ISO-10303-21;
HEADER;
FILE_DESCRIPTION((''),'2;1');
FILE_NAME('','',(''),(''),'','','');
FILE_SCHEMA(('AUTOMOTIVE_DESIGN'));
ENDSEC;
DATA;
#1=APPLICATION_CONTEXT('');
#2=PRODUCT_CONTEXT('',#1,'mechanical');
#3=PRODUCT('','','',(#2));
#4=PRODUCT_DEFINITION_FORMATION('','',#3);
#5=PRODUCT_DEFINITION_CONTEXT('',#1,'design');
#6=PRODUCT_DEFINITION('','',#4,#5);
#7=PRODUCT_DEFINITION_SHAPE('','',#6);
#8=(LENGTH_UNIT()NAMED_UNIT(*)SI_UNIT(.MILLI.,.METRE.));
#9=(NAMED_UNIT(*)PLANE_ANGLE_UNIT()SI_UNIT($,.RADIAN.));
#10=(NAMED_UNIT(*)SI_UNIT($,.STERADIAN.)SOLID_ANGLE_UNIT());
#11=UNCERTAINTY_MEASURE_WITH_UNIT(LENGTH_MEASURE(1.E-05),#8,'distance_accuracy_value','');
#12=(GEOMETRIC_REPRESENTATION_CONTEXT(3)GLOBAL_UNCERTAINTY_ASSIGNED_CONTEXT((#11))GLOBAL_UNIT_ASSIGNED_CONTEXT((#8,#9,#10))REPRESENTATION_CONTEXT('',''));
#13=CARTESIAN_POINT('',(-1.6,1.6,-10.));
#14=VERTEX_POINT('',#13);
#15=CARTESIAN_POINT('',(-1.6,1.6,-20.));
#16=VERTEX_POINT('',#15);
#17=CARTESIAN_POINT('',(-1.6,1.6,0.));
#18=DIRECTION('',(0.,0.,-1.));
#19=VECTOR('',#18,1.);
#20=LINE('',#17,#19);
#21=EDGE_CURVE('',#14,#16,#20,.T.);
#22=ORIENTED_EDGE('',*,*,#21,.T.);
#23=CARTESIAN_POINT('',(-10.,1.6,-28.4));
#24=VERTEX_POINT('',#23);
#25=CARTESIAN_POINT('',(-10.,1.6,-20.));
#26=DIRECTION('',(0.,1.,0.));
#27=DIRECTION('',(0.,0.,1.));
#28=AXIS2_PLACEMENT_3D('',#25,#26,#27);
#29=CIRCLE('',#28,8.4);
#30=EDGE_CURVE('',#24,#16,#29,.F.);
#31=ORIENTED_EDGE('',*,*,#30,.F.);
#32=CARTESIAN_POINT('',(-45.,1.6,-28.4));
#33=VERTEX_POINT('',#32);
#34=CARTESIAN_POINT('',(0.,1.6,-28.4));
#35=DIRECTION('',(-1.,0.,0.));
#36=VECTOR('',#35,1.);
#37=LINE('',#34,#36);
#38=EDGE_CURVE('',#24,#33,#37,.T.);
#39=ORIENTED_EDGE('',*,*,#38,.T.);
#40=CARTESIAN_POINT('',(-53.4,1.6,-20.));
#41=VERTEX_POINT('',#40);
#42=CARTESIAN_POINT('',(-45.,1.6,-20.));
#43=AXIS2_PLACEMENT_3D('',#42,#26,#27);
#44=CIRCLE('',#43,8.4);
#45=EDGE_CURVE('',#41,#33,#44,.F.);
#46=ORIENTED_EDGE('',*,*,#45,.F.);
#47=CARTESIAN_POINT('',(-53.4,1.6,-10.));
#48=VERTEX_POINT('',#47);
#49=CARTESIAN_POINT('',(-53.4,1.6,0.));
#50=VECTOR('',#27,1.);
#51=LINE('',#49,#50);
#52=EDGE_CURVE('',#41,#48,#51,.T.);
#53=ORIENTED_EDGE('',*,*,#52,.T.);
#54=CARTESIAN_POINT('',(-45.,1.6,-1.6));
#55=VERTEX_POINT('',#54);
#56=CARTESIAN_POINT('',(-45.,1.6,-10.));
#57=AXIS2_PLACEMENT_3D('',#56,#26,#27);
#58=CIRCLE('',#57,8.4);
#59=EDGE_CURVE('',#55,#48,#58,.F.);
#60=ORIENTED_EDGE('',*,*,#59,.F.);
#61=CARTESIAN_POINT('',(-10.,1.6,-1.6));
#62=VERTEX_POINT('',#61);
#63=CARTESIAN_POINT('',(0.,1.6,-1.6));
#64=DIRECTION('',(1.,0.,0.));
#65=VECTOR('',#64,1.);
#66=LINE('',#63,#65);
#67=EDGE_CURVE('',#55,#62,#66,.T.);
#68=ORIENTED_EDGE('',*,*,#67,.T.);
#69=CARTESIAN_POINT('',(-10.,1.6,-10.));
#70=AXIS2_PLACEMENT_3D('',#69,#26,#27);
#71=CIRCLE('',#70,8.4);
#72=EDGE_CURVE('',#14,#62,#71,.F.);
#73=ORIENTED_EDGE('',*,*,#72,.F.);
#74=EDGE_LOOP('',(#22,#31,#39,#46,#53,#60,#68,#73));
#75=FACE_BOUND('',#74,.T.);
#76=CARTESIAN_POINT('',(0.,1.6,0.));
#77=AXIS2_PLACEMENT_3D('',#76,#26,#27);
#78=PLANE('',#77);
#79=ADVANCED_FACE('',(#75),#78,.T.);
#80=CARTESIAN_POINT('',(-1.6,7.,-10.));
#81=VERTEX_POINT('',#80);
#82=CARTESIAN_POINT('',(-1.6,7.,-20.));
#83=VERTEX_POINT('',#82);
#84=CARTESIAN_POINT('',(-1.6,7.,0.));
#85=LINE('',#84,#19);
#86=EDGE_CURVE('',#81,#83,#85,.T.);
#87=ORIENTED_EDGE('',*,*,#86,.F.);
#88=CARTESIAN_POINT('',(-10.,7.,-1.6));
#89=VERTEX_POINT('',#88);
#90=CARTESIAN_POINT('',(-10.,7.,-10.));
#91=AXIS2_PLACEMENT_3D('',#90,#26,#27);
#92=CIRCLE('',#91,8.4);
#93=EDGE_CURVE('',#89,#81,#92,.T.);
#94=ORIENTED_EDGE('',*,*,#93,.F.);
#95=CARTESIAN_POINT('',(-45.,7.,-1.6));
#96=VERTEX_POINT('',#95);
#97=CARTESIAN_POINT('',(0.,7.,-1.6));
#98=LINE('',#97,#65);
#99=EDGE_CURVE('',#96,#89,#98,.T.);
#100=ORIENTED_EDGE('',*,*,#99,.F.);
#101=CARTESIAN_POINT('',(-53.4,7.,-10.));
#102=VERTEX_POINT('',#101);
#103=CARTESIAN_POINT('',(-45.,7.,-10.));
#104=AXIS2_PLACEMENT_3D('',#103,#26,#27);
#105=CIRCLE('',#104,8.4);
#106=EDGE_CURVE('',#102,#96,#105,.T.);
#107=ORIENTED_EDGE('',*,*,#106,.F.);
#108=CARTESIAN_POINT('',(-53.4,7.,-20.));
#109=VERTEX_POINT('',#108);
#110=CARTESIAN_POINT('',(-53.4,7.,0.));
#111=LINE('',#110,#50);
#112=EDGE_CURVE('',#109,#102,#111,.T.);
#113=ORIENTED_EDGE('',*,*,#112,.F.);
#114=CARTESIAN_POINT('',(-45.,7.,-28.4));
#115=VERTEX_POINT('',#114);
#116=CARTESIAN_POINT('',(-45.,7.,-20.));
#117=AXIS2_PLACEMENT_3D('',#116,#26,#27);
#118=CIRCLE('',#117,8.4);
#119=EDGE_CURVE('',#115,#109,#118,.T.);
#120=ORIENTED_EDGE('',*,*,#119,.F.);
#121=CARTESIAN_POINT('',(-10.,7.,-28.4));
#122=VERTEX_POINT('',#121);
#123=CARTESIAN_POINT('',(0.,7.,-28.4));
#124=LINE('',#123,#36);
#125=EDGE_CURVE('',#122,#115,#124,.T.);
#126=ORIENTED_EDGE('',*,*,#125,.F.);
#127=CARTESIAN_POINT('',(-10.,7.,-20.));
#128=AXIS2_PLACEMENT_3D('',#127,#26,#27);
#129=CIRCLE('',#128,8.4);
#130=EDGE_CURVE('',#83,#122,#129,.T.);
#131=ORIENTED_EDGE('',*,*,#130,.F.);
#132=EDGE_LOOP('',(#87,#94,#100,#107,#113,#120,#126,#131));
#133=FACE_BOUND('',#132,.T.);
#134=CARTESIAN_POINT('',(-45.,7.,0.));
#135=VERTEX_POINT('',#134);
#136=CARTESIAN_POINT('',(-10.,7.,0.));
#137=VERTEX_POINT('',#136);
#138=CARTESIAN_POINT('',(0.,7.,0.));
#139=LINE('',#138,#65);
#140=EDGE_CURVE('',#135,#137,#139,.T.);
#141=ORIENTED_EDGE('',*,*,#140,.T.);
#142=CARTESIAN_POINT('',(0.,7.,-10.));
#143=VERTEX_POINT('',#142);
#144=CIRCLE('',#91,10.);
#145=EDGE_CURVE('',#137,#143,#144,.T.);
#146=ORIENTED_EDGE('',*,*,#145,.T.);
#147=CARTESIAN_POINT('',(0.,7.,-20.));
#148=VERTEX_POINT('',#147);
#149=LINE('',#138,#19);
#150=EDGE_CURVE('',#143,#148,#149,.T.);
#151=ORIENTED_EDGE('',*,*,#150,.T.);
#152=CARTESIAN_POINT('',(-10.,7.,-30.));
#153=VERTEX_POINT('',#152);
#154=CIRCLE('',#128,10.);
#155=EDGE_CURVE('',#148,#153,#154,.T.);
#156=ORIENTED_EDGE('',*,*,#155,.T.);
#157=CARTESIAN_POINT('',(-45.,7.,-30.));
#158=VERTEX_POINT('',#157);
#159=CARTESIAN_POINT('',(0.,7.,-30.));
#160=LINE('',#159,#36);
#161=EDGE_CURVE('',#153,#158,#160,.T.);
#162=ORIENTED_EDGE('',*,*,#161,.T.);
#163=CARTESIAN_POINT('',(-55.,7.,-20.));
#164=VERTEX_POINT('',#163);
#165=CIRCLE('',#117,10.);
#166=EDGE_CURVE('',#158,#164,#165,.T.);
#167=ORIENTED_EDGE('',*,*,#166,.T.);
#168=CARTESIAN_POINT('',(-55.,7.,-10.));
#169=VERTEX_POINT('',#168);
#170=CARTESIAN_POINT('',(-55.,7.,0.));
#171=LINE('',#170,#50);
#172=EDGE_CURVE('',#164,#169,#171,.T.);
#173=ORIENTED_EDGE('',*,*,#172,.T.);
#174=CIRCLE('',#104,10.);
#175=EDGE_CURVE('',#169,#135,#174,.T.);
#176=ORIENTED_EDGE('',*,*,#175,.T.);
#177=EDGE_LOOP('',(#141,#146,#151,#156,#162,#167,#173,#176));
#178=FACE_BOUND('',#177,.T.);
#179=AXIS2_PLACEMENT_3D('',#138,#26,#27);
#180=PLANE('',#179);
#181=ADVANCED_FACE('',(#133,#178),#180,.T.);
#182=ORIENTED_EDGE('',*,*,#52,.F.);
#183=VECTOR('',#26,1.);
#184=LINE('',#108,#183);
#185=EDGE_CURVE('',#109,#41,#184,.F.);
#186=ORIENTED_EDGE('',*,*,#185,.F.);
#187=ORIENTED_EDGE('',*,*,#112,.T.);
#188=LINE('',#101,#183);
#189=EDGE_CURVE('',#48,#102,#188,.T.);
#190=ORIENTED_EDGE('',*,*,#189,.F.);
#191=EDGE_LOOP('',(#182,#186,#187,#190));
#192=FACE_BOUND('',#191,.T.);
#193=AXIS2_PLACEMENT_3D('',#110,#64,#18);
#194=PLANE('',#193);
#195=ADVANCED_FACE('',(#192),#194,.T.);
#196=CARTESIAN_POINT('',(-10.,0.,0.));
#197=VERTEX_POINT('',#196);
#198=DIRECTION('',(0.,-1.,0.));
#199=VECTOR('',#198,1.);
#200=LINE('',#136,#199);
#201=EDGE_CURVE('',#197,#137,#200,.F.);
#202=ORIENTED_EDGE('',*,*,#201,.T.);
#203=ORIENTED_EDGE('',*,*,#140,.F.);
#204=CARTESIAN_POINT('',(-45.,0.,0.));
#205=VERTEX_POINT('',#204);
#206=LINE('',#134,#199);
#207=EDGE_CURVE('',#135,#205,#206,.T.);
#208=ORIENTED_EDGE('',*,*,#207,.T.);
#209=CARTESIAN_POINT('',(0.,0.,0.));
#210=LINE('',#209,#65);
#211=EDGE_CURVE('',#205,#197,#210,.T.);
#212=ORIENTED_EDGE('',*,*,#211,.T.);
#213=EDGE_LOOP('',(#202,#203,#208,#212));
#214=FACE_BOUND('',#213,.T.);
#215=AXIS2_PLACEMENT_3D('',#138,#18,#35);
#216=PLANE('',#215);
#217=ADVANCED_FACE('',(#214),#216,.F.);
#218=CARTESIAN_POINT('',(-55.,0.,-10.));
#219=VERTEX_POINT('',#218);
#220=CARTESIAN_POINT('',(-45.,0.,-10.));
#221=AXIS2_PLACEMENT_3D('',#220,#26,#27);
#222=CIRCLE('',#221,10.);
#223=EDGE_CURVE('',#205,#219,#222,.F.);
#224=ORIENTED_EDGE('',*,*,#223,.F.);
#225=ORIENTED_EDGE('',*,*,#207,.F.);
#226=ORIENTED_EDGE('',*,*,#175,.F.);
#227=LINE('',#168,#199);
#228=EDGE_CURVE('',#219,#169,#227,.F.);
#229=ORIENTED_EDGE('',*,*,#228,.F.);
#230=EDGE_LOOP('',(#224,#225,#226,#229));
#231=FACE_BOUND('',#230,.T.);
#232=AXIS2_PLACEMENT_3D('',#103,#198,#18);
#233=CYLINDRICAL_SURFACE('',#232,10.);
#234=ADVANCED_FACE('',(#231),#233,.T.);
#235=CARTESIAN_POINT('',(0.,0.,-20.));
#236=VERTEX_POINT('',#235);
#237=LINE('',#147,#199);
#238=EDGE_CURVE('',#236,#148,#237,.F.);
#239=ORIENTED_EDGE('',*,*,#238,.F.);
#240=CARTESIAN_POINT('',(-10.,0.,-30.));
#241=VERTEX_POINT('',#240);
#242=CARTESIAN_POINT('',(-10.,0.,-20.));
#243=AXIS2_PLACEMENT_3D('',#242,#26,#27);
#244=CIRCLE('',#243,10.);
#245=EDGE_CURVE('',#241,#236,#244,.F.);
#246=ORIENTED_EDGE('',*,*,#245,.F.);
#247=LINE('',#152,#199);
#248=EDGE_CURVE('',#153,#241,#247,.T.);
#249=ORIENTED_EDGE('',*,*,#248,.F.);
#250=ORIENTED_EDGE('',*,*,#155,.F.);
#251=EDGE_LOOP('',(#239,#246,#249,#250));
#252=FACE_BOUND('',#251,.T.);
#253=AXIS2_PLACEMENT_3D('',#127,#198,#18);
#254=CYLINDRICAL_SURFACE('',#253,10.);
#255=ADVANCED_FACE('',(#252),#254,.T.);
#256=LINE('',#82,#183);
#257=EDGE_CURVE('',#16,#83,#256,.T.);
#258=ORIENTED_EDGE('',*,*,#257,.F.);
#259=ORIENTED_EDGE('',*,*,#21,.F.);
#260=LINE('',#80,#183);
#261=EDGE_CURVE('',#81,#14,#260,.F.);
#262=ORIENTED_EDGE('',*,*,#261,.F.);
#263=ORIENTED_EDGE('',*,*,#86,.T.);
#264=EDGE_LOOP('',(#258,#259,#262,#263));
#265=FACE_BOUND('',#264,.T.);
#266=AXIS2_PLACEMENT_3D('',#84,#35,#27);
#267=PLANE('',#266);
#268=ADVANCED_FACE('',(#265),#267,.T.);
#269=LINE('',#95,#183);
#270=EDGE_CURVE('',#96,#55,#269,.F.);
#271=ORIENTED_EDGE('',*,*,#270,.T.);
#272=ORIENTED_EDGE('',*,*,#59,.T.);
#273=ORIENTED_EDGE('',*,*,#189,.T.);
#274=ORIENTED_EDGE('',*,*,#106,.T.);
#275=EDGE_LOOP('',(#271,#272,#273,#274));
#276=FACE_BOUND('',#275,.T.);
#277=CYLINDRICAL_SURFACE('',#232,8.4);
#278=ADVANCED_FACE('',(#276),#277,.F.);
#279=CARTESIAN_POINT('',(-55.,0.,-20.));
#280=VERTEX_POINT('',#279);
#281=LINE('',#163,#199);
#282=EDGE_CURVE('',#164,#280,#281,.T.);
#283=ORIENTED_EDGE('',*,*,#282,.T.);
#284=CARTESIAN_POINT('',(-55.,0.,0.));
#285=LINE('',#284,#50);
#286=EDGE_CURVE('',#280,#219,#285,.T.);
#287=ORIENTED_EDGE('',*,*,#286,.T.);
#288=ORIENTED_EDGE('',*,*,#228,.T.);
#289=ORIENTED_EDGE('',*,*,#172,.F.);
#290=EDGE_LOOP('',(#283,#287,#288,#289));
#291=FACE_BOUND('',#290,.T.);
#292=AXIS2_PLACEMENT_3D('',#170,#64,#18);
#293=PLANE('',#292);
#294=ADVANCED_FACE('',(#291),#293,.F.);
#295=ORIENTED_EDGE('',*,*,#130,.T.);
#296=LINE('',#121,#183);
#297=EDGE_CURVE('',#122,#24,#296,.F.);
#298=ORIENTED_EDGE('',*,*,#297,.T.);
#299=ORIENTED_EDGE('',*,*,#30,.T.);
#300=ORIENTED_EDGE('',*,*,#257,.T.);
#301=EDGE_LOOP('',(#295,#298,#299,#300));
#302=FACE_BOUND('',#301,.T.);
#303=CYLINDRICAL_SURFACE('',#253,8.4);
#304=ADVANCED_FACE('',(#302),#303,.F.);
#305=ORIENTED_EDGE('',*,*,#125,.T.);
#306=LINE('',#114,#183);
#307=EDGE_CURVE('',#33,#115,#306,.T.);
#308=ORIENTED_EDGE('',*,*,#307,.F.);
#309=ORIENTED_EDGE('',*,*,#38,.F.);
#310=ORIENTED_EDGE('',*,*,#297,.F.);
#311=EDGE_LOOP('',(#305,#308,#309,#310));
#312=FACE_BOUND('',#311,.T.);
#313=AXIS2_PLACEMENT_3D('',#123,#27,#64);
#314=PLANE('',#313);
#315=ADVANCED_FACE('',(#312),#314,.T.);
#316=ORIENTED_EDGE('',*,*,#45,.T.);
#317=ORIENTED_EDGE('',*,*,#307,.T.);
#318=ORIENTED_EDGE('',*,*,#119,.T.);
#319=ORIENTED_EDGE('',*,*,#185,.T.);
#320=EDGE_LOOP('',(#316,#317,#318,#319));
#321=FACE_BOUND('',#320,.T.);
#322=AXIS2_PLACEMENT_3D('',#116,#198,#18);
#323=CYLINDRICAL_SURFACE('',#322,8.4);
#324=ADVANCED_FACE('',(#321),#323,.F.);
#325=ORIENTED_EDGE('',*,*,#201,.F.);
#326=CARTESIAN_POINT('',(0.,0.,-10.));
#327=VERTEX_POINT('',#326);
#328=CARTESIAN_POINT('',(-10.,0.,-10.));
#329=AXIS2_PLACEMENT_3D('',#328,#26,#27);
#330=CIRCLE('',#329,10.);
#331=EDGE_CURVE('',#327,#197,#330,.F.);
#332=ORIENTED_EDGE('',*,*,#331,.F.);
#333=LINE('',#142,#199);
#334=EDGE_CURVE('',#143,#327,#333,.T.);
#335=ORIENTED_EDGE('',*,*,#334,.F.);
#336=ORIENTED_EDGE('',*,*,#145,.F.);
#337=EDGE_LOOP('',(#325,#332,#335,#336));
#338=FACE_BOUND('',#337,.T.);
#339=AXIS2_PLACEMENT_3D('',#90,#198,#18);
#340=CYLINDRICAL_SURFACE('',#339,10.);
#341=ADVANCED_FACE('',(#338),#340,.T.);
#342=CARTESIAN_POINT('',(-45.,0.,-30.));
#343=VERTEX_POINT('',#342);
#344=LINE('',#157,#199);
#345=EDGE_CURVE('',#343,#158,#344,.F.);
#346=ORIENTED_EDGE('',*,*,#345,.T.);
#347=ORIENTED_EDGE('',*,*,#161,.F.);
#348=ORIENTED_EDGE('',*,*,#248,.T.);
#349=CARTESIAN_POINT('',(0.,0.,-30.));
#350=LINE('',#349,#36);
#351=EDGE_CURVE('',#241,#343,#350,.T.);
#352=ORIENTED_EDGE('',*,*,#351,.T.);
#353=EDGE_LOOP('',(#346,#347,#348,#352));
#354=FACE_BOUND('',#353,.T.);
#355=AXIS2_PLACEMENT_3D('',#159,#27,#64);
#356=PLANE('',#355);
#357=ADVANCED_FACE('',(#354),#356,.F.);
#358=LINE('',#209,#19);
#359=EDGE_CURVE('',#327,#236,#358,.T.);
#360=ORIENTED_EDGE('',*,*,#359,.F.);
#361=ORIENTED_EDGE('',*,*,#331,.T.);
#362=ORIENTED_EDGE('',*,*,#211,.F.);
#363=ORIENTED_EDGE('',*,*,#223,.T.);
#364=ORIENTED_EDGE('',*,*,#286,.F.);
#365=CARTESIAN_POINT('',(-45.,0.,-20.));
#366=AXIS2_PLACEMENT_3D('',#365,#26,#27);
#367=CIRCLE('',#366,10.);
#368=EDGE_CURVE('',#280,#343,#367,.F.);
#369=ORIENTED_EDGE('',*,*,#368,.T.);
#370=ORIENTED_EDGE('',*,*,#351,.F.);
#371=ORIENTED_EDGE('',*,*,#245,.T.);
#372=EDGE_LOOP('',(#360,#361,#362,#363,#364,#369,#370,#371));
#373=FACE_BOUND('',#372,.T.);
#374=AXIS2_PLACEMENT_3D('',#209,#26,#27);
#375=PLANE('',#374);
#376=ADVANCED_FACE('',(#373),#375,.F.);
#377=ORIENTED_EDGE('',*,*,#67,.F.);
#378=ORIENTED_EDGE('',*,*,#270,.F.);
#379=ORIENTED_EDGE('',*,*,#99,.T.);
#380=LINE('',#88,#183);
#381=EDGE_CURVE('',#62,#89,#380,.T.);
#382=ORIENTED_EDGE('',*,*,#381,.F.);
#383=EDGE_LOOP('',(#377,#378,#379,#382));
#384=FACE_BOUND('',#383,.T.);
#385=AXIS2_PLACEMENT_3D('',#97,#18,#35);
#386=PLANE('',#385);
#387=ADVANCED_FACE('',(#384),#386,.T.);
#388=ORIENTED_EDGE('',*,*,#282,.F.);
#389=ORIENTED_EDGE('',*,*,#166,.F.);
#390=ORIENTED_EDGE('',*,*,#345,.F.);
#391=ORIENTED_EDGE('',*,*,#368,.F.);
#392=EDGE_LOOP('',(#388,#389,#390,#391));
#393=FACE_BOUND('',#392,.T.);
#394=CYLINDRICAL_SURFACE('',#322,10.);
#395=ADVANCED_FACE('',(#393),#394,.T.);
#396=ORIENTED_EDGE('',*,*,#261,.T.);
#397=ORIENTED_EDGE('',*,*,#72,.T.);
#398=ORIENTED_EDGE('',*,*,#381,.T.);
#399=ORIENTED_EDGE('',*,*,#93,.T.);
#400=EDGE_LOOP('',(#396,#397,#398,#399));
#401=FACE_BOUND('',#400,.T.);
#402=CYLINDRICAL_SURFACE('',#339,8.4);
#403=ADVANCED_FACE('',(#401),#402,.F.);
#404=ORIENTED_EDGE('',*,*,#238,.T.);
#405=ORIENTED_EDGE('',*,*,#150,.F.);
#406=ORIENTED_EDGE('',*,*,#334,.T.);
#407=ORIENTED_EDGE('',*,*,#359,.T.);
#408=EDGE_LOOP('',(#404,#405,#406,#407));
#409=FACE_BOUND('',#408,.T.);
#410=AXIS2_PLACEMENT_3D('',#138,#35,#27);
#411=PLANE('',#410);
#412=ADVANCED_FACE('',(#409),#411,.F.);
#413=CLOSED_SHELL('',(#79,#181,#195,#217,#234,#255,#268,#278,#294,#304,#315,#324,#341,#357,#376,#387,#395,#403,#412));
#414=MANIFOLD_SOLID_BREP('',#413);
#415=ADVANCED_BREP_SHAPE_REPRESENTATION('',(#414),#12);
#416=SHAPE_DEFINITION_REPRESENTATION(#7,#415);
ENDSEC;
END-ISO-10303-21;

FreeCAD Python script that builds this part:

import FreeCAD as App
import Part
import Sketcher


def edges_at(feature, points):
    """Names of the edges that pass closest to the given points."""
    edges = feature.Shape.Edges
    near = lambda p: min(range(len(edges)), key=lambda i: edges[i].distToShape(Part.Vertex(*p))[0])
    return sorted({f"Edge{near(p) + 1}" for p in points})


def faces_at(feature, points):
    """Names of the faces that lie closest to the given points."""
    faces = feature.Shape.Faces
    near = lambda p: min(range(len(faces)), key=lambda i: faces[i].distToShape(Part.Vertex(*p))[0])
    return sorted({f"Face{near(p) + 1}" for p in points})


def add_polygon(sketch, points):
    """Adds a closed chain of lines whose ends are joined by coincident constraints."""
    first, n = sketch.GeometryCount, len(points)
    for a, b in zip(points, points[1:] + points[:1]):
        sketch.addGeometry(Part.LineSegment(App.Vector(*a, 0), App.Vector(*b, 0)), False)
    for i in range(n):
        sketch.addConstraint(Sketcher.Constraint("Coincident", first + i, 2, first + (i + 1) % n, 1))

doc = App.newDocument("Part")
body = doc.addObject("PartDesign::Body", "Body")

# Sketch on XZ plane
sketch1 = body.newObject("Sketcher::SketchObject", "Sketch")
sketch1.AttachmentSupport = (doc.getObject("XZ_Plane"), [""])
sketch1.MapMode = "FlatFace"
add_polygon(sketch1, [(-55, -30), (-55, 0), (0, 0), (0, -30)])  # lines 0-3
sketch1.addConstraint([
    Sketcher.Constraint("Vertical", 0),
    Sketcher.Constraint("Horizontal", 1),
    Sketcher.Constraint("Vertical", 2),
    Sketcher.Constraint("Horizontal", 3),
    Sketcher.Constraint("Coincident", 1, 2, -1, 1),
    Sketcher.Constraint("DistanceX", 1, 1, 1, 2, 55.0),
    Sketcher.Constraint("DistanceY", 0, 1, 0, 2, 30.0),
])
pad1 = body.newObject("PartDesign::Pad", "Pad")
pad1.Profile = sketch1
pad1.Length = 7
pad1.Reversed = True
doc.recompute()

fillet = body.newObject("PartDesign::Fillet", "Fillet")
fillet.Base = (pad1, edges_at(pad1, [
    (0, 3.5, 0),
    (-55, 3.5, 0),
    (-55, 3.5, -30),
    (0, 3.5, -30),
]))
fillet.Radius = 10
doc.recompute()

thickness = body.newObject("PartDesign::Thickness", "Thickness")
thickness.Base = (fillet, faces_at(fillet, [(-27.5, 7, -15)]))
thickness.Value = 1.6
thickness.Reversed = True
thickness.Join = "Intersection"

doc.recompute()
